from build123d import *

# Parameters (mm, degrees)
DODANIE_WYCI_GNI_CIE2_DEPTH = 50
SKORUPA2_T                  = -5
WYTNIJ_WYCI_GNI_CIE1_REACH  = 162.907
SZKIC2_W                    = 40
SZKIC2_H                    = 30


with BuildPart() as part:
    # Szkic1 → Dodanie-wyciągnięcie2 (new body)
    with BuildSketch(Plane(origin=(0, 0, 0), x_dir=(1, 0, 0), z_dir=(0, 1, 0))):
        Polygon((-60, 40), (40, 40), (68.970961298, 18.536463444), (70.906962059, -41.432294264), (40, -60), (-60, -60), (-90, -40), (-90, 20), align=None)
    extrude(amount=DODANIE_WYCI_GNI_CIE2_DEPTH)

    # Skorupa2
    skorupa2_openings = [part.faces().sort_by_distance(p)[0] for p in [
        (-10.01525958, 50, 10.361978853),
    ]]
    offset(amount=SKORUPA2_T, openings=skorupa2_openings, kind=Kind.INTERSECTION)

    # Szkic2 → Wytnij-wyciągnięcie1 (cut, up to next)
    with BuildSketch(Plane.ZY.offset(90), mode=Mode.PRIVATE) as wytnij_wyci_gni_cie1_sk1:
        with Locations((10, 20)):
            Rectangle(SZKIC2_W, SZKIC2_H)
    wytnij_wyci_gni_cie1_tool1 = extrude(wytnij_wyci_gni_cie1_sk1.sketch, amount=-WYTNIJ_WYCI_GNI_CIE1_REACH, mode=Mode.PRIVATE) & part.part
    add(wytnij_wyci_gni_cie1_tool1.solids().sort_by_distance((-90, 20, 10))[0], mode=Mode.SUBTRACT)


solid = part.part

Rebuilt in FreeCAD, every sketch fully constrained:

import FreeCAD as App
import Part
import Sketcher


def faces_at(feature, points):
    """Names of the faces that lie closest to the given points."""
    faces = feature.Shape.Faces
    near = lambda p: min(range(len(faces)), key=lambda i: faces[i].distToShape(Part.Vertex(*p))[0])
    return sorted({f"Face{near(p) + 1}" for p in points})


def add_polygon(sketch, points):
    """Adds a closed chain of lines whose ends are joined by coincident constraints."""
    first, n = sketch.GeometryCount, len(points)
    for a, b in zip(points, points[1:] + points[:1]):
        sketch.addGeometry(Part.LineSegment(App.Vector(*a, 0), App.Vector(*b, 0)), False)
    for i in range(n):
        sketch.addConstraint(Sketcher.Constraint("Coincident", first + i, 2, first + (i + 1) % n, 1))

doc = App.newDocument("Part")
body = doc.addObject("PartDesign::Body", "Body")

# Sketch on XZ plane
sketch1 = body.newObject("Sketcher::SketchObject", "Sketch")
sketch1.AttachmentSupport = (doc.getObject("XZ_Plane"), [""])
sketch1.MapMode = "FlatFace"
add_polygon(sketch1, [(40, -40), (-60, -40), (-90, -20), (-90, 40), (-60, 60), (40, 60), (71, 41), (69, -19)])  # lines 0-7
sketch1.addConstraint([
    Sketcher.Constraint("Horizontal", 0),
    Sketcher.Constraint("Vertical", 2),
    Sketcher.Constraint("Horizontal", 4),
    Sketcher.Constraint("Vertical", 0, 2, 3, 2),
    Sketcher.Constraint("Vertical", 4, 2, 7, 2),
    Sketcher.Constraint("Equal", 1, 3),
    Sketcher.Constraint("Equal", 3, 5),
    Sketcher.Constraint("Equal", 5, 7),
    Sketcher.Constraint("DistanceX", 0, 2, 0, 1, 100.0),
    Sketcher.Constraint("DistanceY", 2, 1, 2, 2, 60.0),
    Sketcher.Constraint("Distance", 6, 60.0),
    Sketcher.Constraint("DistanceX", 0, 2, -1, 1, 60.0),
    Sketcher.Constraint("DistanceY", 0, 2, -1, 1, 40.0),
    Sketcher.Constraint("DistanceX", 1, 2, -1, 1, 90.0),
    Sketcher.Constraint("DistanceY", 1, 2, -1, 1, 20.0),
    Sketcher.Constraint("DistanceX", 6, 2, 5, 2, 1.936001),
])
pad1 = body.newObject("PartDesign::Pad", "Pad")
pad1.Profile = sketch1
pad1.Length = 50
pad1.Reversed = True
doc.recompute()

thickness = body.newObject("PartDesign::Thickness", "Thickness")
thickness.Base = (pad1, faces_at(pad1, [(-9.547, 50, 10)]))
thickness.Value = 5
thickness.Reversed = True
thickness.Join = "Intersection"

# Sketch on YZ plane
sketch2 = body.newObject("Sketcher::SketchObject", "Sketch001")
sketch2.AttachmentSupport = (doc.getObject("YZ_Plane"), [""])
sketch2.MapMode = "FlatFace"
sketch2.AttachmentOffset = App.Placement(App.Vector(0, 0, -90), App.Rotation())
add_polygon(sketch2, [(35, -10), (5, -10), (5, 30), (35, 30)])  # lines 0-3
sketch2.addConstraint([
    Sketcher.Constraint("Horizontal", 0),
    Sketcher.Constraint("Vertical", 1),
    Sketcher.Constraint("Horizontal", 2),
    Sketcher.Constraint("Vertical", 3),
    Sketcher.Constraint("DistanceX", 0, 2, 0, 1, 30.0),
    Sketcher.Constraint("DistanceY", 1, 1, 1, 2, 40.0),
    Sketcher.Constraint("DistanceX", -1, 1, 0, 2, 5.0),
    Sketcher.Constraint("DistanceY", 0, 2, -1, 1, 10.0),
])
pocket1 = body.newObject("PartDesign::Pocket", "Pocket")
pocket1.Profile = sketch2
pocket1.Type = "UpToFirst"
pocket1.Reversed = True

doc.recompute()
